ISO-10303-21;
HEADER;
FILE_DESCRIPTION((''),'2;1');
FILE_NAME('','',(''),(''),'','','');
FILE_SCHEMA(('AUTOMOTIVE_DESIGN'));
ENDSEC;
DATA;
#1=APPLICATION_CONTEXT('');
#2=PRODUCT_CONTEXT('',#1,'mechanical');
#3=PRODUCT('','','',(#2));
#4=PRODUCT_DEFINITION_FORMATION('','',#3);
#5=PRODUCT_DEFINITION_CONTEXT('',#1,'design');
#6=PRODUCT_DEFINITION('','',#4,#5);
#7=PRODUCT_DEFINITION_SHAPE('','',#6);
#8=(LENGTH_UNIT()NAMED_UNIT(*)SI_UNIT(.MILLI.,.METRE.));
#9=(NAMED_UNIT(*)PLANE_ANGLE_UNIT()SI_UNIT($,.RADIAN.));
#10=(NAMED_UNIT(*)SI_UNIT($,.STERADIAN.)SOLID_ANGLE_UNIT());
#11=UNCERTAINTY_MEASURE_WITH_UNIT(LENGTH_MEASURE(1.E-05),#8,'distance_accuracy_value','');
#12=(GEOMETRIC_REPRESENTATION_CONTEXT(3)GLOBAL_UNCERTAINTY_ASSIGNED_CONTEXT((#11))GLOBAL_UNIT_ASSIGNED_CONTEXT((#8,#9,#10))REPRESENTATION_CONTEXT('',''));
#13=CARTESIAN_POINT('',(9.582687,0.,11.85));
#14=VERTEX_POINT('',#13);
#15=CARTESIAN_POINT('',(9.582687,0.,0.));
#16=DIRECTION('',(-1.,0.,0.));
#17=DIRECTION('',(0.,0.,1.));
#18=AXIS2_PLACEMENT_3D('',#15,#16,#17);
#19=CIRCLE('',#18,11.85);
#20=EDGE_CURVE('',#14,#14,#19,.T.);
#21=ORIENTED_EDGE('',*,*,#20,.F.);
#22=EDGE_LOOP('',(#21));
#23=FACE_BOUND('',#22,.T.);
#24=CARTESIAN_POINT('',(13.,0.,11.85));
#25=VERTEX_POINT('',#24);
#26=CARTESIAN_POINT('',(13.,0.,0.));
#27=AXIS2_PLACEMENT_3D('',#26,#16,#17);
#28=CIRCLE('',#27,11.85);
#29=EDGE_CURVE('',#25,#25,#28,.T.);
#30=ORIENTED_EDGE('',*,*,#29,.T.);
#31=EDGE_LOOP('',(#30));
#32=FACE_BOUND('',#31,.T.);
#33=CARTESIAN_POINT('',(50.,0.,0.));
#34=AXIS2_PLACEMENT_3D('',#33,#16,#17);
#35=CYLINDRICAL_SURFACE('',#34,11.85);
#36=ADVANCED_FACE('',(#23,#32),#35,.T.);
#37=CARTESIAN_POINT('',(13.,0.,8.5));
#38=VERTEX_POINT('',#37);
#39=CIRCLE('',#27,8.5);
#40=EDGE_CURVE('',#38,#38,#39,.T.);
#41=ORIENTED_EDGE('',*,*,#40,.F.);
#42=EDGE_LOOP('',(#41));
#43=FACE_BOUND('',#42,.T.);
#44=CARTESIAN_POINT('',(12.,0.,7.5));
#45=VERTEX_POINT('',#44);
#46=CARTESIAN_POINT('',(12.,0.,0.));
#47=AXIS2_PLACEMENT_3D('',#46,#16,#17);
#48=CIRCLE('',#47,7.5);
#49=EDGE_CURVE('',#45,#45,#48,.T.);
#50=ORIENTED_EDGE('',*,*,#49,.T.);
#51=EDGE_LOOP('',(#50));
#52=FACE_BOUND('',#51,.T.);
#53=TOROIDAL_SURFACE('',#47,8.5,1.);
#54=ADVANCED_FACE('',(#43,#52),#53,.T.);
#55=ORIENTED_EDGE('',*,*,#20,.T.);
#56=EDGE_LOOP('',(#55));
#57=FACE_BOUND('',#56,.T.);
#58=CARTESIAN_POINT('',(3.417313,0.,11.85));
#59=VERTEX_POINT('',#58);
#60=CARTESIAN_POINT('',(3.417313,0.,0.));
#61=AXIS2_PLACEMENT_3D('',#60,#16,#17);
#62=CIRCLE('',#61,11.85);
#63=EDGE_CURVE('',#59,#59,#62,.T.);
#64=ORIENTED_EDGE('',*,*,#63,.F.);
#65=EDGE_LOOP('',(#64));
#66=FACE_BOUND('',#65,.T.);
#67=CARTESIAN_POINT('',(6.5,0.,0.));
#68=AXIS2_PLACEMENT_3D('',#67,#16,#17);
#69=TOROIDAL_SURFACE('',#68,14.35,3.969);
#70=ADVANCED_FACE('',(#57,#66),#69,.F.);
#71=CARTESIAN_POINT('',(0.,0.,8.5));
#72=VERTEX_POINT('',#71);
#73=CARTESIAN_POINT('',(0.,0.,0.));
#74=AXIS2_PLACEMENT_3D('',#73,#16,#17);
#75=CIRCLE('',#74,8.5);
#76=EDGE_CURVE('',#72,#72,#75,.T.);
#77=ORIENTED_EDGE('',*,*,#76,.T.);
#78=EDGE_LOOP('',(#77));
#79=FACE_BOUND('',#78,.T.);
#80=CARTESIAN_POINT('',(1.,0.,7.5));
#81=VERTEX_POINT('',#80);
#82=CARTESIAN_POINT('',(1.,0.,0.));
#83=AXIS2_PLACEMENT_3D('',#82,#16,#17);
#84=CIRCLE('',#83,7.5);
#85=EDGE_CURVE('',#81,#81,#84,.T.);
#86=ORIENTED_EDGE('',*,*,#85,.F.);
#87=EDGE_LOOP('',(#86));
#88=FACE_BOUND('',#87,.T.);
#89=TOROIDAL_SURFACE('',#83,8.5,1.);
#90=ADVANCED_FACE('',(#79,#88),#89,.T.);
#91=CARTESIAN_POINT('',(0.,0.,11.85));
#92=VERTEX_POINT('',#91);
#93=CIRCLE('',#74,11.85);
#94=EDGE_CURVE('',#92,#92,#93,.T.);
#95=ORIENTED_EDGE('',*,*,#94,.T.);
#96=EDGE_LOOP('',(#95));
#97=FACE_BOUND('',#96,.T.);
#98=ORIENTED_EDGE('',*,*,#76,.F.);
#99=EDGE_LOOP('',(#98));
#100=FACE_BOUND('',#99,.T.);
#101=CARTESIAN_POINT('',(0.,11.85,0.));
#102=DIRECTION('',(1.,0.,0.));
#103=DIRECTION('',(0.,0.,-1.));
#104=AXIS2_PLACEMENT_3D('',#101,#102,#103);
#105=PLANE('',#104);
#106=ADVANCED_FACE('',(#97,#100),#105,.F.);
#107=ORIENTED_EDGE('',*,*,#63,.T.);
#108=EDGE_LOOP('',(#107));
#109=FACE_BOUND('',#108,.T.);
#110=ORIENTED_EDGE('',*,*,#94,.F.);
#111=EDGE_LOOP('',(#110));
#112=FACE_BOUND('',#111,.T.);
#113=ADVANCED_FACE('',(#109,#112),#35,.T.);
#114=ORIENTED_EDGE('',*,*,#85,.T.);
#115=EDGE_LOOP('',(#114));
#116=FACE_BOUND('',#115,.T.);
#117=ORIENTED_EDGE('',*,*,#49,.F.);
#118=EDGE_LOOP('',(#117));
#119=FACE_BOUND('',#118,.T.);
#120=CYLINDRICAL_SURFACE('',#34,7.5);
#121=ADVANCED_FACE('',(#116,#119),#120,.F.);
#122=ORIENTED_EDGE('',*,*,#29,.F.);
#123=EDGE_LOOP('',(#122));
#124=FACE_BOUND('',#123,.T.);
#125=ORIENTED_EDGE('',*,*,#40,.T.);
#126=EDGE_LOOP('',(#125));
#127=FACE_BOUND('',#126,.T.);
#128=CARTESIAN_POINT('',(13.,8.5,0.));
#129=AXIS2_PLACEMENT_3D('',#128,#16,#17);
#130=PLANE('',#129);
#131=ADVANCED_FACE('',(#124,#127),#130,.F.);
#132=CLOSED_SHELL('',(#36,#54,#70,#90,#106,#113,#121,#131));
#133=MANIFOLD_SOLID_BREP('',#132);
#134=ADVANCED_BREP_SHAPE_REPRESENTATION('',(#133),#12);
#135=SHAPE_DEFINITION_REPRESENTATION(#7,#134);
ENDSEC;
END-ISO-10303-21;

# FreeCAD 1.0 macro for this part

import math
import FreeCAD as App
import Part
import Sketcher
from FreeCAD import Vector
Q = App.Units.Quantity

doc = App.newDocument("Part")
params = doc.addObject("Spreadsheet::Sheet", "Params")
for row, (alias, value) in enumerate([
    ("sketch1_radius", "1 mm"),
    ("sketch1_width", "11 mm"),
    ("sketch1_height", "3.35 mm"),
    ("revolution_angle", "360 deg"),
], start=1):
    params.set(f"A{row}", alias)
    params.set(f"B{row}", "=" + value)
    params.setAlias(f"B{row}", alias)

body = doc.addObject("PartDesign::Body", "Body")

# Sketch on XY plane
sketch1 = doc.addObject("Sketcher::SketchObject", "Sketch")
body.addObject(sketch1)
sketch1.AttachmentSupport = (doc.XY_Plane, [""])
sketch1.MapMode = "FlatFace"
sketch1.addGeometry([
    Part.LineSegment(Vector(1, 7.5, 0), Vector(12, 7.5, 0)),  # 0
    Part.ArcOfCircle(Part.Circle(Vector(12, 8.5, 0), Vector(0, 0, 1), 1), math.radians(-90), math.radians(0)),  # 1
    Part.LineSegment(Vector(13, 8.5, 0), Vector(13, 11.85, 0)),  # 2
    Part.LineSegment(Vector(13, 11.85, 0), Vector(9.582687, 11.85, 0)),  # 3
    Part.ArcOfCircle(Part.Circle(Vector(6.5, 14.35, 0), Vector(0, 0, 1), 3.969), math.radians(-140.958614), math.radians(-39.041386)),  # 4
    Part.LineSegment(Vector(3.417313, 11.85, 0), Vector(0, 11.85, 0)),  # 5
    Part.LineSegment(Vector(0, 11.85, 0), Vector(0, 8.5, 0)),  # 6
    Part.ArcOfCircle(Part.Circle(Vector(1, 8.5, 0), Vector(0, 0, 1), 1), math.radians(-180), math.radians(-90)),  # 7
], False)
sketch1.addConstraint([
    Sketcher.Constraint("Tangent", 0, 2, 1, 1),
    Sketcher.Constraint("Tangent", 1, 2, 2, 1),
    Sketcher.Constraint("Coincident", 2, 2, 3, 1),
    Sketcher.Constraint("Coincident", 3, 2, 4, 2),
    Sketcher.Constraint("Coincident", 4, 1, 5, 1),
    Sketcher.Constraint("Coincident", 5, 2, 6, 1),
    Sketcher.Constraint("Tangent", 6, 2, 7, 1),
    Sketcher.Constraint("Tangent", 7, 2, 0, 1),
    Sketcher.Constraint("Horizontal", 0),
    Sketcher.Constraint("Vertical", 2),
    Sketcher.Constraint("Horizontal", 3),
    Sketcher.Constraint("Horizontal", 5),
    Sketcher.Constraint("Vertical", 6),
    Sketcher.Constraint("Equal", 1, 7),
    Sketcher.Constraint("PointOnObject", 5, 2, -2),
    Sketcher.Constraint("Horizontal", 3, 2, 4, 1),
    Sketcher.Constraint("Equal", 3, 5),
    Sketcher.Constraint("Radius", 1, Q("1 mm")),
    Sketcher.Constraint("DistanceX", 0, 1, 0, 2, Q("11 mm")),
    Sketcher.Constraint("Radius", 4, Q("3.969 mm")),
    Sketcher.Constraint("DistanceY", 2, 1, 2, 2, Q("3.35 mm")),
    Sketcher.Constraint("DistanceY", -1, 1, 1, 3, Q("8.5 mm")),
    Sketcher.Constraint("DistanceY", 2, 2, 4, 3, Q("2.5 mm")),
])
sketch1.setExpression("Constraints[17]", "Params.sketch1_radius")
sketch1.setExpression("Constraints[18]", "Params.sketch1_width")
sketch1.setExpression("Constraints[20]", "Params.sketch1_height")
revolution = doc.addObject("PartDesign::Revolution", "Revolution")
body.addObject(revolution)
revolution.Profile = sketch1
revolution.ReferenceAxis = (sketch1, ["H_Axis"])
revolution.setExpression("Angle", "Params.revolution_angle")

doc.recompute()
